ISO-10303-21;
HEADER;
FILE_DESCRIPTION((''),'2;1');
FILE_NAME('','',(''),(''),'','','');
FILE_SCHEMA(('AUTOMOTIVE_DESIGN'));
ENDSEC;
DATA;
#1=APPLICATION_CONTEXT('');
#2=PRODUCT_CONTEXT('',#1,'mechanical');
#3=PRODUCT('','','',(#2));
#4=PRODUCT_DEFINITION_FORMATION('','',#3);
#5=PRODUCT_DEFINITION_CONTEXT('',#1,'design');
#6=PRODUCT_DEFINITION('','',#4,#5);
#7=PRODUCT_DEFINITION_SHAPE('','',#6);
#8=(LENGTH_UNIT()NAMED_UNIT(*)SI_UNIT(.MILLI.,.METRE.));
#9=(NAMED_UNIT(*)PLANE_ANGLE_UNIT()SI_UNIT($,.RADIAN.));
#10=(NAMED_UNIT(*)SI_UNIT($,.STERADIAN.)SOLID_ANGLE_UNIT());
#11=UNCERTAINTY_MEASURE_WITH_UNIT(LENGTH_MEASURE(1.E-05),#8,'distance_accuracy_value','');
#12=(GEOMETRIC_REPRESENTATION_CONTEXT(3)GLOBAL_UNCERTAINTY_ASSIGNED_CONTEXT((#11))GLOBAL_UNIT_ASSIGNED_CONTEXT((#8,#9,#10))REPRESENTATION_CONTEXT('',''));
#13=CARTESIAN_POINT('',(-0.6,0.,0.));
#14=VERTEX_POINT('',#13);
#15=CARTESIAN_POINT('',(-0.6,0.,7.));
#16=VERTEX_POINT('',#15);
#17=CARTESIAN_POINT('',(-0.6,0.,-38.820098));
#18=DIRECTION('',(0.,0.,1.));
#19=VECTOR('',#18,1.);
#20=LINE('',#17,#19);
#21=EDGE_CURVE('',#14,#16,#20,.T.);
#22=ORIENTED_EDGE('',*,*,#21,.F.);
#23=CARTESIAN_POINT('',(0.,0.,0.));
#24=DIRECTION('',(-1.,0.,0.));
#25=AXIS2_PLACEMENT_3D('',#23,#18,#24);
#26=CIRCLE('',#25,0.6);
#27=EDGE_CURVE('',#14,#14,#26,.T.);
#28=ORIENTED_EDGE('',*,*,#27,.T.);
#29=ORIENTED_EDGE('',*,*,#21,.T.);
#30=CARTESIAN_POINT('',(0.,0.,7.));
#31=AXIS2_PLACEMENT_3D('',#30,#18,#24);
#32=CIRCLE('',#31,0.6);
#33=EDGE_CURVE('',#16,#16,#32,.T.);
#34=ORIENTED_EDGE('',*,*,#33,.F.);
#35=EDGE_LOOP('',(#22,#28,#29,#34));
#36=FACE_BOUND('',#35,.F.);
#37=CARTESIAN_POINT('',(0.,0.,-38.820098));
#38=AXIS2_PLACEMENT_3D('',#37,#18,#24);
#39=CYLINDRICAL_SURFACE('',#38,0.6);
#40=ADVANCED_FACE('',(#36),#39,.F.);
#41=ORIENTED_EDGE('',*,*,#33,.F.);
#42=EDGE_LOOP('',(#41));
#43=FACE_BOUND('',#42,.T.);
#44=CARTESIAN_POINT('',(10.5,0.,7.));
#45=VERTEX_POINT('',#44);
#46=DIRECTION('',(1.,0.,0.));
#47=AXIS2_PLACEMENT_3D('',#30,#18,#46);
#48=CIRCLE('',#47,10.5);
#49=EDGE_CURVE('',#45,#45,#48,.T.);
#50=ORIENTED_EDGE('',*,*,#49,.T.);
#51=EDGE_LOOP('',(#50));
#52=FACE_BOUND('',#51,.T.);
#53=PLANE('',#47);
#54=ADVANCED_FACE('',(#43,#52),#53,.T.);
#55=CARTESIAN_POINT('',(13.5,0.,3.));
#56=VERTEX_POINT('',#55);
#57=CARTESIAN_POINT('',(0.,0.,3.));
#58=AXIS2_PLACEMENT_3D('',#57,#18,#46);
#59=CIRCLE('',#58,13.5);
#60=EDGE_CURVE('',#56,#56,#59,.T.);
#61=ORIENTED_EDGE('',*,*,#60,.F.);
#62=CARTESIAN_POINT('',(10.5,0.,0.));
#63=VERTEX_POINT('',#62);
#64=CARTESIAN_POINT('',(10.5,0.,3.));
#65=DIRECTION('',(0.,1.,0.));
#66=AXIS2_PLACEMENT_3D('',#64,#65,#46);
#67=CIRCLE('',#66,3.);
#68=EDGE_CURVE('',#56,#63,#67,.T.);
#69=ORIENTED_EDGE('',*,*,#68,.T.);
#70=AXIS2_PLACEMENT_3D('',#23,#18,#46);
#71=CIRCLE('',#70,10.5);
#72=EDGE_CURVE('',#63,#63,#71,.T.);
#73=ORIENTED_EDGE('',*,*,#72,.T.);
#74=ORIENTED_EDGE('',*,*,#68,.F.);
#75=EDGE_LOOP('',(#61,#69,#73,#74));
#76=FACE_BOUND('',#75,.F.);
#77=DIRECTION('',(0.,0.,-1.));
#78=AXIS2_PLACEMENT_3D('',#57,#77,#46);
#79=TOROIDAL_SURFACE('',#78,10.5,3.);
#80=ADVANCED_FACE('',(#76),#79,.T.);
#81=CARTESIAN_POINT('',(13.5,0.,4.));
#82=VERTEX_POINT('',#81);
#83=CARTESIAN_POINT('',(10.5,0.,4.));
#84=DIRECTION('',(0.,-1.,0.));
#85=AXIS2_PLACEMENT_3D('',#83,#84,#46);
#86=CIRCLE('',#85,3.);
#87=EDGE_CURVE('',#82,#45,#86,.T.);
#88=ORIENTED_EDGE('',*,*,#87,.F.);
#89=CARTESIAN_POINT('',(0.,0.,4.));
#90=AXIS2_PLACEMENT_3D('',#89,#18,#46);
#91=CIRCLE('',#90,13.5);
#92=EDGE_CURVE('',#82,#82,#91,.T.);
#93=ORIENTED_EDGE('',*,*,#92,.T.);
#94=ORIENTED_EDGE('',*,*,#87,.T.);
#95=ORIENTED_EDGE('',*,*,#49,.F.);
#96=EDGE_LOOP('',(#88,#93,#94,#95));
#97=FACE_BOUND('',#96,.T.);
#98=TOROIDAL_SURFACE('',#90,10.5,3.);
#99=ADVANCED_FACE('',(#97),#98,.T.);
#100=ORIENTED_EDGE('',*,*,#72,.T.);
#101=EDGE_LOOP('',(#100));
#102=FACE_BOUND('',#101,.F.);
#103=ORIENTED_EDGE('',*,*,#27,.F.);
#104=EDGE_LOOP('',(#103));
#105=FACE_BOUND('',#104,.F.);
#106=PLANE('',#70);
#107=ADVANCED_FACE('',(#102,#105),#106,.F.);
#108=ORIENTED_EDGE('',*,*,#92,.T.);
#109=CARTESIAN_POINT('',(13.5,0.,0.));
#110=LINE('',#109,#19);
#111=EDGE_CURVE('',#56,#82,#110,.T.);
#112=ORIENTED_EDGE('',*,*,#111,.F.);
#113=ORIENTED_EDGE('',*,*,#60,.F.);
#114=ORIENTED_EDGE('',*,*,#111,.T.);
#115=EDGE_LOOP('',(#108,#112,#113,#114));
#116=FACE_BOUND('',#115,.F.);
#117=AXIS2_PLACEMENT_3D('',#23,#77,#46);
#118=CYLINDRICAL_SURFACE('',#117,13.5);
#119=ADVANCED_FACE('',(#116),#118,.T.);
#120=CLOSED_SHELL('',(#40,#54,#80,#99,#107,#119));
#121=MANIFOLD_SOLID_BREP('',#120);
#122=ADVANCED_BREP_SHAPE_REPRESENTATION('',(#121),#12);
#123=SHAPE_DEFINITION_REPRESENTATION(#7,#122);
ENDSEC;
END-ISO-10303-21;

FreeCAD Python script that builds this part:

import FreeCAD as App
import Part
import Sketcher
from FreeCAD import Vector
Q = App.Units.Quantity


def edges_at(feature, points):
    """Names of the edges that pass closest to the given points."""
    edges = feature.Shape.Edges
    near = lambda p: min(range(len(edges)), key=lambda i: edges[i].distToShape(Part.Vertex(*p))[0])
    return sorted({f"Edge{near(p) + 1}" for p in points})

doc = App.newDocument("Part")
body = doc.addObject("PartDesign::Body", "Body")

# Sketch on XY plane
sketch1 = body.newObject("Sketcher::SketchObject", "Sketch")
sketch1.AttachmentSupport = (doc.getObject("XY_Plane"), [""])
sketch1.MapMode = "FlatFace"
sketch1.addGeometry(Part.Circle(Vector(0, 0, 0), Vector(0, 0, 1), 13.5), False)
sketch1.addConstraint([
    Sketcher.Constraint("Coincident", 0, 3, -1, 1),
    Sketcher.Constraint("Diameter", 0, Q("27 mm")),
])
pad1 = body.newObject("PartDesign::Pad", "Pad")
pad1.Profile = sketch1
pad1.Length = 7

# Sketch on XY plane
sketch2 = body.newObject("Sketcher::SketchObject", "Sketch001")
sketch2.AttachmentSupport = (doc.getObject("XY_Plane"), [""])
sketch2.MapMode = "FlatFace"
sketch2.addGeometry(Part.Circle(Vector(0, 0, 0), Vector(0, 0, 1), 0.6), False)
sketch2.addConstraint([
    Sketcher.Constraint("Coincident", 0, 3, -1, 1),
    Sketcher.Constraint("Diameter", 0, Q("1.2 mm")),
])
doc.recompute()
hole = body.newObject("PartDesign::Hole", "Hole")
hole.Profile = sketch2
hole.ThreadType = "None"
hole.Diameter = 1.2
hole.DepthType = "ThroughAll"
hole.Reversed = True
doc.recompute()

fillet = body.newObject("PartDesign::Fillet", "Fillet")
fillet.Base = (hole, edges_at(hole, [(-13.5, 0, 0), (-13.5, 0, 7)]))
fillet.Radius = 3

doc.recompute()
